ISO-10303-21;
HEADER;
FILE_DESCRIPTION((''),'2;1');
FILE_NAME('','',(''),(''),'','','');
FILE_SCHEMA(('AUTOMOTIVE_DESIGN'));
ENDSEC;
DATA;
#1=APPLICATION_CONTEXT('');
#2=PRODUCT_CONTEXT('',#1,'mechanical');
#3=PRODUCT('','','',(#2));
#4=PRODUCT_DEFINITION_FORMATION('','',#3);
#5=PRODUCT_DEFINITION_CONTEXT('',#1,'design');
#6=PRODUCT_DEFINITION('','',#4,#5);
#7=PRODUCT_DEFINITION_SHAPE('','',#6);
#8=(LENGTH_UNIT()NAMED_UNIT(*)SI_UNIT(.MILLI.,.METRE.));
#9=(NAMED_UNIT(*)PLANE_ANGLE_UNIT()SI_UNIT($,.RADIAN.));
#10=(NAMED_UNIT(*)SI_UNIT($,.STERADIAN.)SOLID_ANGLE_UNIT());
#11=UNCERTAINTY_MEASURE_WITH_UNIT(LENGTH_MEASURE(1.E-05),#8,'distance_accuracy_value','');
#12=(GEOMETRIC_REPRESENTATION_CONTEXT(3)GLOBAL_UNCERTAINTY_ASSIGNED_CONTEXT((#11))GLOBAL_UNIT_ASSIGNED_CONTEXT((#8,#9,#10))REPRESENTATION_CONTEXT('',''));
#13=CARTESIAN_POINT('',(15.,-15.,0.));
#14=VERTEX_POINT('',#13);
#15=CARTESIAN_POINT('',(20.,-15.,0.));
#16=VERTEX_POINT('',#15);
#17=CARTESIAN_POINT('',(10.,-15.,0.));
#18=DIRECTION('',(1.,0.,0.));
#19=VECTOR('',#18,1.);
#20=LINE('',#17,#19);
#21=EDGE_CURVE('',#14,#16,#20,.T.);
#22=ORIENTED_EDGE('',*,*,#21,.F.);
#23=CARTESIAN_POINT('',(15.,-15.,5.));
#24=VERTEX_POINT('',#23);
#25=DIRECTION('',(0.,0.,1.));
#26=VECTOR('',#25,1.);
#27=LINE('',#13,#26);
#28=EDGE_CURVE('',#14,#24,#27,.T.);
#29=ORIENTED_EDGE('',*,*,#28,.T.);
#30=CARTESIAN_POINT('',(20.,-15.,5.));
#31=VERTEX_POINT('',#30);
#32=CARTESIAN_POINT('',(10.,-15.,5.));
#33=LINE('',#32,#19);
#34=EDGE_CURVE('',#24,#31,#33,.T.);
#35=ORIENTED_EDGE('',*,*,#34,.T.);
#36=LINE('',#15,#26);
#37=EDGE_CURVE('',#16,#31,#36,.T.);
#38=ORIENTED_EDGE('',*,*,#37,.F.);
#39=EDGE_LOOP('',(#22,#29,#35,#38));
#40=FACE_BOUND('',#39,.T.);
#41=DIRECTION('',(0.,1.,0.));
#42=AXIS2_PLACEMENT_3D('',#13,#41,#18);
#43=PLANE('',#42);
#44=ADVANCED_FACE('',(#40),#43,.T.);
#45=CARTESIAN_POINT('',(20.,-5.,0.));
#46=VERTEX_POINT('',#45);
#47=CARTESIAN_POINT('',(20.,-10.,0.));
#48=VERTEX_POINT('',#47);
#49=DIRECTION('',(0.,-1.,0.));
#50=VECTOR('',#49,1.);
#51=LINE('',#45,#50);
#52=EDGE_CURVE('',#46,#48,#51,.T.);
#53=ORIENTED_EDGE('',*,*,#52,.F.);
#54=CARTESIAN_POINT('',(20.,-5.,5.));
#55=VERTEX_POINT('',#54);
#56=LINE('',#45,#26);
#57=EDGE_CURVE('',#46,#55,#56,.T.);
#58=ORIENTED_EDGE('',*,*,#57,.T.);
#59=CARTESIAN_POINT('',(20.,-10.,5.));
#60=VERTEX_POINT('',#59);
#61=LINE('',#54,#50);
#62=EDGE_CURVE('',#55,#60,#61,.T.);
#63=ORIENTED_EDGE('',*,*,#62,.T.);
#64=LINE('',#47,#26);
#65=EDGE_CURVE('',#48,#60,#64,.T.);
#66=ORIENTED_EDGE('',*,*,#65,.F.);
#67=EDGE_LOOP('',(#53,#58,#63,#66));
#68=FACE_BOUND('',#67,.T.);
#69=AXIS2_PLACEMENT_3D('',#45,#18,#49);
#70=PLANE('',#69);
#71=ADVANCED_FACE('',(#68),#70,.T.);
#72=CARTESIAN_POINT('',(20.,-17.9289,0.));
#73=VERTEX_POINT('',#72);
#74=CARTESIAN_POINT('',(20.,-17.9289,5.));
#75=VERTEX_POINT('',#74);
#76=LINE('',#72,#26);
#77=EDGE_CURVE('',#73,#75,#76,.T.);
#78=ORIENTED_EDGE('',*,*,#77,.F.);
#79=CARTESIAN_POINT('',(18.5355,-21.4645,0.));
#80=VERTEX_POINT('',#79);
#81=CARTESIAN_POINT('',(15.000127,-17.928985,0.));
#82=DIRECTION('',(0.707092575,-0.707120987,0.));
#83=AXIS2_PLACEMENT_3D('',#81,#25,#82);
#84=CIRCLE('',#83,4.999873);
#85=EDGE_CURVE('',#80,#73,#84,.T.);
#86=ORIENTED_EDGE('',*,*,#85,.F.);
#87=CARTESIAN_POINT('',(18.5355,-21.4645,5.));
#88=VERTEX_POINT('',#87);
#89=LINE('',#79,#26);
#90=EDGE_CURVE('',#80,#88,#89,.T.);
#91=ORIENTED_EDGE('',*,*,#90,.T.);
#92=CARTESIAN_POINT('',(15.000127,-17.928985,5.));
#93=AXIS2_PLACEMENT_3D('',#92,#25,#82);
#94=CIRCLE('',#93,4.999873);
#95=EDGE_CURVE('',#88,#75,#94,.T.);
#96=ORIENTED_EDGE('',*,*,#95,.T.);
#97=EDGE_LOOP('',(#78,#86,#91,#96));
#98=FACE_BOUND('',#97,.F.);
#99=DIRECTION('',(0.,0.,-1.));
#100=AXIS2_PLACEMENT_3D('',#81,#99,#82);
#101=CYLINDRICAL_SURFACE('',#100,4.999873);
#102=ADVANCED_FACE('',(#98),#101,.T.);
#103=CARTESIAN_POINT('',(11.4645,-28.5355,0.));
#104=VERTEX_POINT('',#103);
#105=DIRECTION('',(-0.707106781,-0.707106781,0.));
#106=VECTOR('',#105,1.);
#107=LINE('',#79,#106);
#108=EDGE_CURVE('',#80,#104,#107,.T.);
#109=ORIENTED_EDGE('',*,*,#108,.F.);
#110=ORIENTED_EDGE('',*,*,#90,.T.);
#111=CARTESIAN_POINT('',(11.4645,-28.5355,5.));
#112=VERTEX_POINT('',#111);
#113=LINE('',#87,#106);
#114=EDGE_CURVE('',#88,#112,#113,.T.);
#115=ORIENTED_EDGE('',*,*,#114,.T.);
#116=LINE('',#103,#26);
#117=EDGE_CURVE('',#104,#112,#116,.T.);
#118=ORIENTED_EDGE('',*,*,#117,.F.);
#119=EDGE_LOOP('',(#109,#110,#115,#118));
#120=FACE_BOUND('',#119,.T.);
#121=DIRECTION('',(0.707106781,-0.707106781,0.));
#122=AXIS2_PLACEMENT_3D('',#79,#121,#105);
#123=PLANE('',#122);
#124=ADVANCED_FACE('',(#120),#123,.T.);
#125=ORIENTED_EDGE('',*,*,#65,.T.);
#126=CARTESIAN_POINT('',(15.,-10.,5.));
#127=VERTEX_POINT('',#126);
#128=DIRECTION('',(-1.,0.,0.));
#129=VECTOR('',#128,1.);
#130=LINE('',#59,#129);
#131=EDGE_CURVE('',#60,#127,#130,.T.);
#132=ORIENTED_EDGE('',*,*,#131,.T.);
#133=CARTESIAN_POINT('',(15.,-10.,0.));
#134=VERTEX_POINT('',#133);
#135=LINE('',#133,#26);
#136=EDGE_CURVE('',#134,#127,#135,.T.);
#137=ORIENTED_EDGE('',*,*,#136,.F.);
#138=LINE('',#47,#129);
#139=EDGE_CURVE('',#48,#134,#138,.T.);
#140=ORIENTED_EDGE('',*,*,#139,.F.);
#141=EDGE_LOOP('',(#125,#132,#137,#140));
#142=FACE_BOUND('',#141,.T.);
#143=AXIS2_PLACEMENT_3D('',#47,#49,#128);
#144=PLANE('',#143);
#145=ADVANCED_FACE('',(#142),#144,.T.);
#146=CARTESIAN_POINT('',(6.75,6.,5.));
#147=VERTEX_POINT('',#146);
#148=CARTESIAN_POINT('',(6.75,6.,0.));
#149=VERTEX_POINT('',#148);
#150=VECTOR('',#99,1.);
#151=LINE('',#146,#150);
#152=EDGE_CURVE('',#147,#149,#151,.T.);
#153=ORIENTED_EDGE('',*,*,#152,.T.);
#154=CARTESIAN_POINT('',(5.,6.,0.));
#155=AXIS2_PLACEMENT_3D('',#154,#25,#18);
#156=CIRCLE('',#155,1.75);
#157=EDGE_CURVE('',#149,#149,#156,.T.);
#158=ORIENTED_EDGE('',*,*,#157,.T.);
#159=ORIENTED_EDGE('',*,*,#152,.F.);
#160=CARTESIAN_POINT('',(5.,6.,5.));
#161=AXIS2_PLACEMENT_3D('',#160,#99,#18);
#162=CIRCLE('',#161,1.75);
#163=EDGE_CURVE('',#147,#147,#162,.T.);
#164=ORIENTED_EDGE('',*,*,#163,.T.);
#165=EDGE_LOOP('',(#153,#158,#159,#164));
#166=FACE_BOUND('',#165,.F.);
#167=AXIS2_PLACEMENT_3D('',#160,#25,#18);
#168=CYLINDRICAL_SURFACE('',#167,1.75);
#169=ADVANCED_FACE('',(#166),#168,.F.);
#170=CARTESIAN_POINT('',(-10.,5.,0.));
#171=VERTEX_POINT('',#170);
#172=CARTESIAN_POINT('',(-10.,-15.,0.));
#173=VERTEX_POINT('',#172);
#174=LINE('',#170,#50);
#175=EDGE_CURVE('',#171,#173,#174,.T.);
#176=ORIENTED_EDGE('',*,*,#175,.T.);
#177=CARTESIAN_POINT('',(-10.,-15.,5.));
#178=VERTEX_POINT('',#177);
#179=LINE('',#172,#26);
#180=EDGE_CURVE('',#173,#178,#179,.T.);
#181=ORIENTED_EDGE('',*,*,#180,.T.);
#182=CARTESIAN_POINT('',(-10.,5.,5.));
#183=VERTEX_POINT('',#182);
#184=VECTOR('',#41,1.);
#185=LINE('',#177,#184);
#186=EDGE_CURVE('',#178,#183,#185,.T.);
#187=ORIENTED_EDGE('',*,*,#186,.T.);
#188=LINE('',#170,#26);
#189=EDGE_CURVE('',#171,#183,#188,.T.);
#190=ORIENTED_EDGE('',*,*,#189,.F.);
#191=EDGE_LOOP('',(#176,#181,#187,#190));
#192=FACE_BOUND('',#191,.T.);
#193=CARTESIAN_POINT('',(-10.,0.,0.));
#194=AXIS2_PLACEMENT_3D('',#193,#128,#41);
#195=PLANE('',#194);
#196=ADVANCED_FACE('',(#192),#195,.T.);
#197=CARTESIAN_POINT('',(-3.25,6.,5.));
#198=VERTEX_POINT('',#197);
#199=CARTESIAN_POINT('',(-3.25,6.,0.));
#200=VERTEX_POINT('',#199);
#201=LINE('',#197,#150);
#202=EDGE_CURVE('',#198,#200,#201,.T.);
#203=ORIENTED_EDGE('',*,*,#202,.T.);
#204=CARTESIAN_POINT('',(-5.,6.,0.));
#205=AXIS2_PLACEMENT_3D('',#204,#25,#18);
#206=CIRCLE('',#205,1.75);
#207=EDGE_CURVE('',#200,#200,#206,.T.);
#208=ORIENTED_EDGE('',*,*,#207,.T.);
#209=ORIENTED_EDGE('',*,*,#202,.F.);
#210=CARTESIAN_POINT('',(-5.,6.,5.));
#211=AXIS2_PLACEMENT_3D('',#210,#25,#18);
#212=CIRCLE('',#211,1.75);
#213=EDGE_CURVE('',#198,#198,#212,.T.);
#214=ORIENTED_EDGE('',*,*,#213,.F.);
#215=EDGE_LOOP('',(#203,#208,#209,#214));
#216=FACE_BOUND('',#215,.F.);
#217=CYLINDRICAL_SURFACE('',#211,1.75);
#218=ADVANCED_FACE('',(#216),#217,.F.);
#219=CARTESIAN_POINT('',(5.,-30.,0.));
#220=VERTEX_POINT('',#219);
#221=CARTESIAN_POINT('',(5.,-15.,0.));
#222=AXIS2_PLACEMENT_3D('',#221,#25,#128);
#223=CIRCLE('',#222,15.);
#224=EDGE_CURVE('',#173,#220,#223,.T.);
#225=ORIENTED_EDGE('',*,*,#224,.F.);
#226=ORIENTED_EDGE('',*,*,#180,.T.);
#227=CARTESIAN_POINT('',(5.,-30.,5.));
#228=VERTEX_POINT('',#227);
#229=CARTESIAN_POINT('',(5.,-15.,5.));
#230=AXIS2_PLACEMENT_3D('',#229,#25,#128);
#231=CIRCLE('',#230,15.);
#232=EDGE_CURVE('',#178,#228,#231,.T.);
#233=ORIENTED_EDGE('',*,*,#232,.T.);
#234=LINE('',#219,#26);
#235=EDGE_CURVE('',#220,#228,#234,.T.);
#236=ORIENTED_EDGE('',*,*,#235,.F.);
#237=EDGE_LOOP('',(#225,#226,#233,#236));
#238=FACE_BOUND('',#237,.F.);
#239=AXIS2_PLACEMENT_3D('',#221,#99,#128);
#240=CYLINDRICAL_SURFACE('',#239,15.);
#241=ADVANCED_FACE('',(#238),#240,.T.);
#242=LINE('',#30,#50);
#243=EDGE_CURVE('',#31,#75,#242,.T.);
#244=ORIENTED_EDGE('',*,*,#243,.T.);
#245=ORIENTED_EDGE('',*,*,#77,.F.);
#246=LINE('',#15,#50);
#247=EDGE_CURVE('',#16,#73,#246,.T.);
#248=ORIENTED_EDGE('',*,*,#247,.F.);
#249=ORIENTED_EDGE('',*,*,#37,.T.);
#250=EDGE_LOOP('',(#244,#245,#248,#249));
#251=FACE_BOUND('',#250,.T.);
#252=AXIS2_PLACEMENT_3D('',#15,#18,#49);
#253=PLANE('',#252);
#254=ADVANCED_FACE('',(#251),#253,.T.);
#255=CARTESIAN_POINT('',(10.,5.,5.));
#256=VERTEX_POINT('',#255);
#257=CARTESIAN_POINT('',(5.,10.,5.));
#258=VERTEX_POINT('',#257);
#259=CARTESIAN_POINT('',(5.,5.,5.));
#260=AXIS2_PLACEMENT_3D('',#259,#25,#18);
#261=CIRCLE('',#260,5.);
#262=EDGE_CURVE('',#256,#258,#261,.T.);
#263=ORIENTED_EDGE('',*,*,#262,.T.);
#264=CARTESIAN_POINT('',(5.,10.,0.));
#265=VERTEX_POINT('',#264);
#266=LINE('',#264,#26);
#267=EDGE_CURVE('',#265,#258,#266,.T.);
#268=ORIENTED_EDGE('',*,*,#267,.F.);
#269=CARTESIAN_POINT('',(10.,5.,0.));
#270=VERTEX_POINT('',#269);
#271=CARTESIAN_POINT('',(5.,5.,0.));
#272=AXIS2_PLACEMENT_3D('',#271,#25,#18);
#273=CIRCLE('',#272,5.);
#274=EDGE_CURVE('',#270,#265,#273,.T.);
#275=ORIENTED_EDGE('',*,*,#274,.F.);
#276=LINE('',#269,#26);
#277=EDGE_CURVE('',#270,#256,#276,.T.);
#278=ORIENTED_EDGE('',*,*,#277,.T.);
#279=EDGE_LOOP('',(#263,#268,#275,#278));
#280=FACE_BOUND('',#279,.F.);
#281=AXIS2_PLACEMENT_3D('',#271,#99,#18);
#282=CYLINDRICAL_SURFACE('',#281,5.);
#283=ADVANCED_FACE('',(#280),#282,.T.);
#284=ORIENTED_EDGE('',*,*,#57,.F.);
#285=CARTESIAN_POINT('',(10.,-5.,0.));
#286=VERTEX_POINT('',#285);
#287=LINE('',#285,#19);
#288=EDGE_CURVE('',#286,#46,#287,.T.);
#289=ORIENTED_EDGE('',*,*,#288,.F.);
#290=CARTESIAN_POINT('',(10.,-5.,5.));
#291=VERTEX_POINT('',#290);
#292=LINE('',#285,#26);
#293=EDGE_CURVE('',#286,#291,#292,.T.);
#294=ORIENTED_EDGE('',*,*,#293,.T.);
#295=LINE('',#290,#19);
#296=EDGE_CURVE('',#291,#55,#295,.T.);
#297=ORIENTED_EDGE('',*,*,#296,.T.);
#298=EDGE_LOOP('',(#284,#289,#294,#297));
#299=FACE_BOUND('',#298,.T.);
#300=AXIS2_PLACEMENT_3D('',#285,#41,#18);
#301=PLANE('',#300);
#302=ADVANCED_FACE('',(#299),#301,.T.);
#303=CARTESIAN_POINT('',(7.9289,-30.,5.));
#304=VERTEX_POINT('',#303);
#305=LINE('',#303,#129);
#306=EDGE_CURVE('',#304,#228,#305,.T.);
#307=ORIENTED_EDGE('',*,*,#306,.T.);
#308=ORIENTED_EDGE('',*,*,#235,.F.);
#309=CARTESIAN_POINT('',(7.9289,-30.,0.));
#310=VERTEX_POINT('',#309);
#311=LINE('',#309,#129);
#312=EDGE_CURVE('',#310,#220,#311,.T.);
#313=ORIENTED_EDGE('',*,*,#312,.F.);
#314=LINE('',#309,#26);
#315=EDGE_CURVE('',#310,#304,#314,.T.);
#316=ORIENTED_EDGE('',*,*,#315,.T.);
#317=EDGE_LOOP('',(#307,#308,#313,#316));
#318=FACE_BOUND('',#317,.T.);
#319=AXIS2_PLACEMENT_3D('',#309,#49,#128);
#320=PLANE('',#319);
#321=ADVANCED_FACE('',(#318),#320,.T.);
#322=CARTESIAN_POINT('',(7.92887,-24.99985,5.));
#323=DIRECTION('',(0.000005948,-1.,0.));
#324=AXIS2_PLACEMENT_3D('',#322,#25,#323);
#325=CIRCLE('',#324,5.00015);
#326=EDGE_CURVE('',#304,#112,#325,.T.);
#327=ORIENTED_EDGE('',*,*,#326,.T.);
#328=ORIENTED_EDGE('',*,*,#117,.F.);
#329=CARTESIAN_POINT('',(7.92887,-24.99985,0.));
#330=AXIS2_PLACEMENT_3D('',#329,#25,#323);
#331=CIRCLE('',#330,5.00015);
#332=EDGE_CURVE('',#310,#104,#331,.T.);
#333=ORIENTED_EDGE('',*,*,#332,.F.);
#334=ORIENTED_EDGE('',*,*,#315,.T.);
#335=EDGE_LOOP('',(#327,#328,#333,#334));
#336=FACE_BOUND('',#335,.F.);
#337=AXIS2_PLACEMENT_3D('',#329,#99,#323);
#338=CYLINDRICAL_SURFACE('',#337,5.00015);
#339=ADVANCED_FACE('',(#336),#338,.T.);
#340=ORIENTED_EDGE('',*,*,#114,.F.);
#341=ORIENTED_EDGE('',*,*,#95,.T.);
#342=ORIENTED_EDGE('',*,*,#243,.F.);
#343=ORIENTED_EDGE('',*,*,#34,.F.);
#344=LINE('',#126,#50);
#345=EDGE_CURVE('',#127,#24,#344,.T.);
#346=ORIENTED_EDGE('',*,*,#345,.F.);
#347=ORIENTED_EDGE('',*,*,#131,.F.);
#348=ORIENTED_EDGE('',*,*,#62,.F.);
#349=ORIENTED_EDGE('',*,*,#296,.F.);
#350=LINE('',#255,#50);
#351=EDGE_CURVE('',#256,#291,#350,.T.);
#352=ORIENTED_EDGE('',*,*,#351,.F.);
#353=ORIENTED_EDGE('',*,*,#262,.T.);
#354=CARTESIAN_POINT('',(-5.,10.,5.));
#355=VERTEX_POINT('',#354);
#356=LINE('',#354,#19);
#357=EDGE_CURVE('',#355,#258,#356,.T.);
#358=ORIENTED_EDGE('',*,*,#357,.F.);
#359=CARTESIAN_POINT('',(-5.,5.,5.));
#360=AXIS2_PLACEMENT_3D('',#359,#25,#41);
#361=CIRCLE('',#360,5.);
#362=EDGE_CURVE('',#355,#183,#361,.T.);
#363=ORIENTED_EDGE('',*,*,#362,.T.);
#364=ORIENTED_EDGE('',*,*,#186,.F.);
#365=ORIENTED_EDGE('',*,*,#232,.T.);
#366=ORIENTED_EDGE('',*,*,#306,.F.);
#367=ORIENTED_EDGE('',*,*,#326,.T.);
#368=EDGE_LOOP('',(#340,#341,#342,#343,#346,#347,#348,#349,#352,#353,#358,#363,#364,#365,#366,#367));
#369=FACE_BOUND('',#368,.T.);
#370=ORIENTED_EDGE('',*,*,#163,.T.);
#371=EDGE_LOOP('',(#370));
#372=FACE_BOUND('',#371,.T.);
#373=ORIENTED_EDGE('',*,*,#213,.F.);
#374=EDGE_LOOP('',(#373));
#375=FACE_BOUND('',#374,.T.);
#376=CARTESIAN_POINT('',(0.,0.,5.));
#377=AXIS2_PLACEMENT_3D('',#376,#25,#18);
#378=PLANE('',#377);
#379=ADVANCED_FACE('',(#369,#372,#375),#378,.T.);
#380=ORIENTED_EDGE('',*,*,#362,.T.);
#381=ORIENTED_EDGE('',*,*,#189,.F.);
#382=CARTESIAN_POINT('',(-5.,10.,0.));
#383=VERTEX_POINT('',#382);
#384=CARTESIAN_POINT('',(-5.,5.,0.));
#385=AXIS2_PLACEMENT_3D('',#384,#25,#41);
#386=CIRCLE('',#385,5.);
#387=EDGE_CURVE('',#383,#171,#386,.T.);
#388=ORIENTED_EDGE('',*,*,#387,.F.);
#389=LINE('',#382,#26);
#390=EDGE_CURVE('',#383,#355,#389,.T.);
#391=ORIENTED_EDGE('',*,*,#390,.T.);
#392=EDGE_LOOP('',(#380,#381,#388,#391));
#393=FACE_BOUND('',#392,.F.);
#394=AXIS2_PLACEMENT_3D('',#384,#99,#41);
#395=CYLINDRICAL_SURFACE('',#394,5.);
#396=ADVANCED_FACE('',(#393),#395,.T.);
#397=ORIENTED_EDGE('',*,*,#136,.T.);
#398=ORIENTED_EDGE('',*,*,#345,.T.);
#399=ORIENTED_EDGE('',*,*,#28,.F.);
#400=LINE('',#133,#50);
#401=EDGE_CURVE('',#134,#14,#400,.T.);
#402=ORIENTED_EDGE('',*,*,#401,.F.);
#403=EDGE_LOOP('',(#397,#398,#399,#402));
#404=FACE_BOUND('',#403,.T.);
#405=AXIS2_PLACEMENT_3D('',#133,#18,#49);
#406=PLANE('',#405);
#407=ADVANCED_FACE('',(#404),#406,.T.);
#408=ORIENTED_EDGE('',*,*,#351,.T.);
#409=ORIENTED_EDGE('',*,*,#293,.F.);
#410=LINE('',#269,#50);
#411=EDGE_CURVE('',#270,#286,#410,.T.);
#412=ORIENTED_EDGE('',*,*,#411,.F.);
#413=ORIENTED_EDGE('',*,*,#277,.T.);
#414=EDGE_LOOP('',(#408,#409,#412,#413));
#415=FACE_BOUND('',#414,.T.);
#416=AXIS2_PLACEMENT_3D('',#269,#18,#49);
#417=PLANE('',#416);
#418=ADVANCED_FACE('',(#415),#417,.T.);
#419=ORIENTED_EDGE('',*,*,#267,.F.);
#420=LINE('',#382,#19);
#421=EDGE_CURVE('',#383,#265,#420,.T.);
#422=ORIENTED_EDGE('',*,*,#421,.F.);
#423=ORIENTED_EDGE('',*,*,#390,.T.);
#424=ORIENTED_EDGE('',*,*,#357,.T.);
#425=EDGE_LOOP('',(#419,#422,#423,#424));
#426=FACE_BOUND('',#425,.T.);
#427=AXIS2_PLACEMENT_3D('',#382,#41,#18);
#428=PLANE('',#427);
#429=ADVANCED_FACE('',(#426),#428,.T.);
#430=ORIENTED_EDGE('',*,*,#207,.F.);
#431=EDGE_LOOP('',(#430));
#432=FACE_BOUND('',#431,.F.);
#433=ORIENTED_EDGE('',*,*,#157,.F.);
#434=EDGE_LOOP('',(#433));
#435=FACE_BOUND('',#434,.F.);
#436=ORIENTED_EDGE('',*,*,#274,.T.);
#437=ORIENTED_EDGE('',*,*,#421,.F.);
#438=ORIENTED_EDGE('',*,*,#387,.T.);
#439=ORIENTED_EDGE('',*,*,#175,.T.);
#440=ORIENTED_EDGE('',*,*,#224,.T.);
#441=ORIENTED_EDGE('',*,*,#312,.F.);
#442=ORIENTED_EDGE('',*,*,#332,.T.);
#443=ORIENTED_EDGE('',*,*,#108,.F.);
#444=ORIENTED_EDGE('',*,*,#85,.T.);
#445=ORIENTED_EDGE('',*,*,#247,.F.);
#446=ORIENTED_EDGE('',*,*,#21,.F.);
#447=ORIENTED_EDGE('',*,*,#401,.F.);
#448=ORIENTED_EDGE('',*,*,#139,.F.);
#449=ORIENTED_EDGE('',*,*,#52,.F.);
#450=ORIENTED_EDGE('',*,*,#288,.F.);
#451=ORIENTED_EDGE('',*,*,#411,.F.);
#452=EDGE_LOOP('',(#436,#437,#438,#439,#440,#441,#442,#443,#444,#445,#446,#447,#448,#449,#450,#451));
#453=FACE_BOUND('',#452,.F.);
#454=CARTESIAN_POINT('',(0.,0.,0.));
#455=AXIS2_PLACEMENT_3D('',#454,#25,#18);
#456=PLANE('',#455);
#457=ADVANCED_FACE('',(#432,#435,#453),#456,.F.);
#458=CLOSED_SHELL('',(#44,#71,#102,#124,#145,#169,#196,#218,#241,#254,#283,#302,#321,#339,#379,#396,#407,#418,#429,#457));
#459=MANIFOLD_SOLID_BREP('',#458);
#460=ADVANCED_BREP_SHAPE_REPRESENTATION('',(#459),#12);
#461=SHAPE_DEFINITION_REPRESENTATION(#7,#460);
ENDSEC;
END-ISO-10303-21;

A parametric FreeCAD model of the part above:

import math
import FreeCAD as App
import Part
import Sketcher
from FreeCAD import Vector
Q = App.Units.Quantity

doc = App.newDocument("Part")
body = doc.addObject("PartDesign::Body", "Body")

# Sketch on XY plane
sketch1 = body.newObject("Sketcher::SketchObject", "Sketch")
sketch1.AttachmentSupport = (doc.getObject("XY_Plane"), [""])
sketch1.MapMode = "FlatFace"
sketch1.addGeometry(Part.LineSegment(Vector(-10, 5, 0), Vector(-10, -15, 0)), False)
sketch1.addGeometry(Part.ArcOfCircle(Part.Circle(Vector(5, -15, 0), Vector(0, 0, 1), 15), math.radians(180), math.radians(270)), False)
sketch1.addGeometry(Part.LineSegment(Vector(5, -30, 0), Vector(7.9, -30, 0)), False)
sketch1.addGeometry(Part.ArcOfCircle(Part.Circle(Vector(7.9, -25, 0), Vector(0, 0, 1), 5), math.radians(-90), math.radians(-45)), False)
sketch1.addGeometry(Part.LineSegment(Vector(11.5, -28.5, 0), Vector(18.5, -21.5, 0)), False)
sketch1.addGeometry(Part.ArcOfCircle(Part.Circle(Vector(15, -17.9, 0), Vector(0, 0, 1), 5), math.radians(-45), math.radians(0)), False)
sketch1.addGeometry(Part.LineSegment(Vector(20, -17.9, 0), Vector(20, -15, 0)), False)
sketch1.addGeometry(Part.LineSegment(Vector(20, -15, 0), Vector(15, -15, 0)), False)
sketch1.addGeometry(Part.LineSegment(Vector(15, -15, 0), Vector(15, -10, 0)), False)
sketch1.addGeometry(Part.LineSegment(Vector(15, -10, 0), Vector(20, -10, 0)), False)
sketch1.addGeometry(Part.LineSegment(Vector(20, -10, 0), Vector(20, -5, 0)), False)
sketch1.addGeometry(Part.LineSegment(Vector(20, -5, 0), Vector(10, -5, 0)), False)
sketch1.addGeometry(Part.LineSegment(Vector(10, -5, 0), Vector(10, 5, 0)), False)
sketch1.addGeometry(Part.ArcOfCircle(Part.Circle(Vector(5, 5, 0), Vector(0, 0, 1), 5), math.radians(0), math.radians(90)), False)
sketch1.addGeometry(Part.LineSegment(Vector(5, 10, 0), Vector(-5, 10, 0)), False)
sketch1.addGeometry(Part.ArcOfCircle(Part.Circle(Vector(-5, 5, 0), Vector(0, 0, 1), 5), math.radians(90), math.radians(180)), False)
sketch1.addConstraint(Sketcher.Constraint("Tangent", 0, 2, 1, 1))
sketch1.addConstraint(Sketcher.Constraint("Tangent", 1, 2, 2, 1))
sketch1.addConstraint(Sketcher.Constraint("Tangent", 2, 2, 3, 1))
sketch1.addConstraint(Sketcher.Constraint("Tangent", 3, 2, 4, 1))
sketch1.addConstraint(Sketcher.Constraint("Tangent", 4, 2, 5, 1))
sketch1.addConstraint(Sketcher.Constraint("Tangent", 5, 2, 6, 1))
sketch1.addConstraint(Sketcher.Constraint("Coincident", 6, 2, 7, 1))
sketch1.addConstraint(Sketcher.Constraint("Coincident", 7, 2, 8, 1))
sketch1.addConstraint(Sketcher.Constraint("Coincident", 8, 2, 9, 1))
sketch1.addConstraint(Sketcher.Constraint("Coincident", 9, 2, 10, 1))
sketch1.addConstraint(Sketcher.Constraint("Coincident", 10, 2, 11, 1))
sketch1.addConstraint(Sketcher.Constraint("Coincident", 11, 2, 12, 1))
sketch1.addConstraint(Sketcher.Constraint("Tangent", 12, 2, 13, 1))
sketch1.addConstraint(Sketcher.Constraint("Tangent", 13, 2, 14, 1))
sketch1.addConstraint(Sketcher.Constraint("Tangent", 14, 2, 15, 1))
sketch1.addConstraint(Sketcher.Constraint("Tangent", 15, 2, 0, 1))
sketch1.addConstraint(Sketcher.Constraint("Vertical", 0))
sketch1.addConstraint(Sketcher.Constraint("Horizontal", 2))
sketch1.addConstraint(Sketcher.Constraint("Vertical", 6))
sketch1.addConstraint(Sketcher.Constraint("Horizontal", 7))
sketch1.addConstraint(Sketcher.Constraint("Vertical", 8))
sketch1.addConstraint(Sketcher.Constraint("Horizontal", 9))
sketch1.addConstraint(Sketcher.Constraint("Vertical", 10))
sketch1.addConstraint(Sketcher.Constraint("Horizontal", 11))
sketch1.addConstraint(Sketcher.Constraint("Vertical", 12))
sketch1.addConstraint(Sketcher.Constraint("Horizontal", 14))
sketch1.addConstraint(Sketcher.Constraint("Equal", 3, 5))
sketch1.addConstraint(Sketcher.Constraint("Equal", 5, 13))
sketch1.addConstraint(Sketcher.Constraint("Equal", 13, 15))
sketch1.addConstraint(Sketcher.Constraint("Symmetric", 11, 2, 15, 2, -1, 1))
sketch1.addConstraint(Sketcher.Constraint("Horizontal", 0, 2, 6, 2))
sketch1.addConstraint(Sketcher.Constraint("Vertical", 1, 3, 13, 3))
sketch1.addConstraint(Sketcher.Constraint("Vertical", 5, 3, 7, 2))
sketch1.addConstraint(Sketcher.Constraint("Vertical", 6, 2, 9, 2))
sketch1.addConstraint(Sketcher.Constraint("Equal", 11, 14))
sketch1.addConstraint(Sketcher.Constraint("Equal", 2, 6))
sketch1.addConstraint(Sketcher.Constraint("Equal", 9, 8))
sketch1.addConstraint(Sketcher.Constraint("Equal", 8, 10))
sketch1.addConstraint(Sketcher.Constraint("Equal", 14, 12))
sketch1.addConstraint(Sketcher.Constraint("Radius", 1, Q("15 mm")))
sketch1.addConstraint(Sketcher.Constraint("Radius", 3, Q("5 mm")))
sketch1.addConstraint(Sketcher.Constraint("Distance", 4, Q("10 mm")))
pad1 = body.newObject("PartDesign::Pad", "Pad")
pad1.Profile = sketch1
pad1.Length = 5

# Sketch on XY plane
sketch2 = body.newObject("Sketcher::SketchObject", "Sketch001")
sketch2.AttachmentSupport = (doc.getObject("XY_Plane"), [""])
sketch2.MapMode = "FlatFace"
sketch2.AttachmentOffset = App.Placement(Vector(0, 0, 5), App.Rotation())
sketch2.addGeometry(Part.Circle(Vector(5, 6, 0), Vector(0, 0, 1), 1.8), False)
sketch2.addGeometry(Part.Circle(Vector(-5, 6, 0), Vector(0, 0, 1), 1.8), False)
sketch2.addConstraint(Sketcher.Constraint("Equal", 0, 1))
sketch2.addConstraint(Sketcher.Constraint("Symmetric", 0, 3, 1, 3, -2))
sketch2.addConstraint(Sketcher.Constraint("Diameter", 0, Q("3.5 mm")))
sketch2.addConstraint(Sketcher.Constraint("DistanceX", -1, 1, 0, 3, Q("5 mm")))
sketch2.addConstraint(Sketcher.Constraint("DistanceY", -1, 1, 0, 3, Q("6 mm")))
pocket1 = body.newObject("PartDesign::Pocket", "Pocket")
pocket1.Profile = sketch2
pocket1.Length = 5

doc.recompute()
